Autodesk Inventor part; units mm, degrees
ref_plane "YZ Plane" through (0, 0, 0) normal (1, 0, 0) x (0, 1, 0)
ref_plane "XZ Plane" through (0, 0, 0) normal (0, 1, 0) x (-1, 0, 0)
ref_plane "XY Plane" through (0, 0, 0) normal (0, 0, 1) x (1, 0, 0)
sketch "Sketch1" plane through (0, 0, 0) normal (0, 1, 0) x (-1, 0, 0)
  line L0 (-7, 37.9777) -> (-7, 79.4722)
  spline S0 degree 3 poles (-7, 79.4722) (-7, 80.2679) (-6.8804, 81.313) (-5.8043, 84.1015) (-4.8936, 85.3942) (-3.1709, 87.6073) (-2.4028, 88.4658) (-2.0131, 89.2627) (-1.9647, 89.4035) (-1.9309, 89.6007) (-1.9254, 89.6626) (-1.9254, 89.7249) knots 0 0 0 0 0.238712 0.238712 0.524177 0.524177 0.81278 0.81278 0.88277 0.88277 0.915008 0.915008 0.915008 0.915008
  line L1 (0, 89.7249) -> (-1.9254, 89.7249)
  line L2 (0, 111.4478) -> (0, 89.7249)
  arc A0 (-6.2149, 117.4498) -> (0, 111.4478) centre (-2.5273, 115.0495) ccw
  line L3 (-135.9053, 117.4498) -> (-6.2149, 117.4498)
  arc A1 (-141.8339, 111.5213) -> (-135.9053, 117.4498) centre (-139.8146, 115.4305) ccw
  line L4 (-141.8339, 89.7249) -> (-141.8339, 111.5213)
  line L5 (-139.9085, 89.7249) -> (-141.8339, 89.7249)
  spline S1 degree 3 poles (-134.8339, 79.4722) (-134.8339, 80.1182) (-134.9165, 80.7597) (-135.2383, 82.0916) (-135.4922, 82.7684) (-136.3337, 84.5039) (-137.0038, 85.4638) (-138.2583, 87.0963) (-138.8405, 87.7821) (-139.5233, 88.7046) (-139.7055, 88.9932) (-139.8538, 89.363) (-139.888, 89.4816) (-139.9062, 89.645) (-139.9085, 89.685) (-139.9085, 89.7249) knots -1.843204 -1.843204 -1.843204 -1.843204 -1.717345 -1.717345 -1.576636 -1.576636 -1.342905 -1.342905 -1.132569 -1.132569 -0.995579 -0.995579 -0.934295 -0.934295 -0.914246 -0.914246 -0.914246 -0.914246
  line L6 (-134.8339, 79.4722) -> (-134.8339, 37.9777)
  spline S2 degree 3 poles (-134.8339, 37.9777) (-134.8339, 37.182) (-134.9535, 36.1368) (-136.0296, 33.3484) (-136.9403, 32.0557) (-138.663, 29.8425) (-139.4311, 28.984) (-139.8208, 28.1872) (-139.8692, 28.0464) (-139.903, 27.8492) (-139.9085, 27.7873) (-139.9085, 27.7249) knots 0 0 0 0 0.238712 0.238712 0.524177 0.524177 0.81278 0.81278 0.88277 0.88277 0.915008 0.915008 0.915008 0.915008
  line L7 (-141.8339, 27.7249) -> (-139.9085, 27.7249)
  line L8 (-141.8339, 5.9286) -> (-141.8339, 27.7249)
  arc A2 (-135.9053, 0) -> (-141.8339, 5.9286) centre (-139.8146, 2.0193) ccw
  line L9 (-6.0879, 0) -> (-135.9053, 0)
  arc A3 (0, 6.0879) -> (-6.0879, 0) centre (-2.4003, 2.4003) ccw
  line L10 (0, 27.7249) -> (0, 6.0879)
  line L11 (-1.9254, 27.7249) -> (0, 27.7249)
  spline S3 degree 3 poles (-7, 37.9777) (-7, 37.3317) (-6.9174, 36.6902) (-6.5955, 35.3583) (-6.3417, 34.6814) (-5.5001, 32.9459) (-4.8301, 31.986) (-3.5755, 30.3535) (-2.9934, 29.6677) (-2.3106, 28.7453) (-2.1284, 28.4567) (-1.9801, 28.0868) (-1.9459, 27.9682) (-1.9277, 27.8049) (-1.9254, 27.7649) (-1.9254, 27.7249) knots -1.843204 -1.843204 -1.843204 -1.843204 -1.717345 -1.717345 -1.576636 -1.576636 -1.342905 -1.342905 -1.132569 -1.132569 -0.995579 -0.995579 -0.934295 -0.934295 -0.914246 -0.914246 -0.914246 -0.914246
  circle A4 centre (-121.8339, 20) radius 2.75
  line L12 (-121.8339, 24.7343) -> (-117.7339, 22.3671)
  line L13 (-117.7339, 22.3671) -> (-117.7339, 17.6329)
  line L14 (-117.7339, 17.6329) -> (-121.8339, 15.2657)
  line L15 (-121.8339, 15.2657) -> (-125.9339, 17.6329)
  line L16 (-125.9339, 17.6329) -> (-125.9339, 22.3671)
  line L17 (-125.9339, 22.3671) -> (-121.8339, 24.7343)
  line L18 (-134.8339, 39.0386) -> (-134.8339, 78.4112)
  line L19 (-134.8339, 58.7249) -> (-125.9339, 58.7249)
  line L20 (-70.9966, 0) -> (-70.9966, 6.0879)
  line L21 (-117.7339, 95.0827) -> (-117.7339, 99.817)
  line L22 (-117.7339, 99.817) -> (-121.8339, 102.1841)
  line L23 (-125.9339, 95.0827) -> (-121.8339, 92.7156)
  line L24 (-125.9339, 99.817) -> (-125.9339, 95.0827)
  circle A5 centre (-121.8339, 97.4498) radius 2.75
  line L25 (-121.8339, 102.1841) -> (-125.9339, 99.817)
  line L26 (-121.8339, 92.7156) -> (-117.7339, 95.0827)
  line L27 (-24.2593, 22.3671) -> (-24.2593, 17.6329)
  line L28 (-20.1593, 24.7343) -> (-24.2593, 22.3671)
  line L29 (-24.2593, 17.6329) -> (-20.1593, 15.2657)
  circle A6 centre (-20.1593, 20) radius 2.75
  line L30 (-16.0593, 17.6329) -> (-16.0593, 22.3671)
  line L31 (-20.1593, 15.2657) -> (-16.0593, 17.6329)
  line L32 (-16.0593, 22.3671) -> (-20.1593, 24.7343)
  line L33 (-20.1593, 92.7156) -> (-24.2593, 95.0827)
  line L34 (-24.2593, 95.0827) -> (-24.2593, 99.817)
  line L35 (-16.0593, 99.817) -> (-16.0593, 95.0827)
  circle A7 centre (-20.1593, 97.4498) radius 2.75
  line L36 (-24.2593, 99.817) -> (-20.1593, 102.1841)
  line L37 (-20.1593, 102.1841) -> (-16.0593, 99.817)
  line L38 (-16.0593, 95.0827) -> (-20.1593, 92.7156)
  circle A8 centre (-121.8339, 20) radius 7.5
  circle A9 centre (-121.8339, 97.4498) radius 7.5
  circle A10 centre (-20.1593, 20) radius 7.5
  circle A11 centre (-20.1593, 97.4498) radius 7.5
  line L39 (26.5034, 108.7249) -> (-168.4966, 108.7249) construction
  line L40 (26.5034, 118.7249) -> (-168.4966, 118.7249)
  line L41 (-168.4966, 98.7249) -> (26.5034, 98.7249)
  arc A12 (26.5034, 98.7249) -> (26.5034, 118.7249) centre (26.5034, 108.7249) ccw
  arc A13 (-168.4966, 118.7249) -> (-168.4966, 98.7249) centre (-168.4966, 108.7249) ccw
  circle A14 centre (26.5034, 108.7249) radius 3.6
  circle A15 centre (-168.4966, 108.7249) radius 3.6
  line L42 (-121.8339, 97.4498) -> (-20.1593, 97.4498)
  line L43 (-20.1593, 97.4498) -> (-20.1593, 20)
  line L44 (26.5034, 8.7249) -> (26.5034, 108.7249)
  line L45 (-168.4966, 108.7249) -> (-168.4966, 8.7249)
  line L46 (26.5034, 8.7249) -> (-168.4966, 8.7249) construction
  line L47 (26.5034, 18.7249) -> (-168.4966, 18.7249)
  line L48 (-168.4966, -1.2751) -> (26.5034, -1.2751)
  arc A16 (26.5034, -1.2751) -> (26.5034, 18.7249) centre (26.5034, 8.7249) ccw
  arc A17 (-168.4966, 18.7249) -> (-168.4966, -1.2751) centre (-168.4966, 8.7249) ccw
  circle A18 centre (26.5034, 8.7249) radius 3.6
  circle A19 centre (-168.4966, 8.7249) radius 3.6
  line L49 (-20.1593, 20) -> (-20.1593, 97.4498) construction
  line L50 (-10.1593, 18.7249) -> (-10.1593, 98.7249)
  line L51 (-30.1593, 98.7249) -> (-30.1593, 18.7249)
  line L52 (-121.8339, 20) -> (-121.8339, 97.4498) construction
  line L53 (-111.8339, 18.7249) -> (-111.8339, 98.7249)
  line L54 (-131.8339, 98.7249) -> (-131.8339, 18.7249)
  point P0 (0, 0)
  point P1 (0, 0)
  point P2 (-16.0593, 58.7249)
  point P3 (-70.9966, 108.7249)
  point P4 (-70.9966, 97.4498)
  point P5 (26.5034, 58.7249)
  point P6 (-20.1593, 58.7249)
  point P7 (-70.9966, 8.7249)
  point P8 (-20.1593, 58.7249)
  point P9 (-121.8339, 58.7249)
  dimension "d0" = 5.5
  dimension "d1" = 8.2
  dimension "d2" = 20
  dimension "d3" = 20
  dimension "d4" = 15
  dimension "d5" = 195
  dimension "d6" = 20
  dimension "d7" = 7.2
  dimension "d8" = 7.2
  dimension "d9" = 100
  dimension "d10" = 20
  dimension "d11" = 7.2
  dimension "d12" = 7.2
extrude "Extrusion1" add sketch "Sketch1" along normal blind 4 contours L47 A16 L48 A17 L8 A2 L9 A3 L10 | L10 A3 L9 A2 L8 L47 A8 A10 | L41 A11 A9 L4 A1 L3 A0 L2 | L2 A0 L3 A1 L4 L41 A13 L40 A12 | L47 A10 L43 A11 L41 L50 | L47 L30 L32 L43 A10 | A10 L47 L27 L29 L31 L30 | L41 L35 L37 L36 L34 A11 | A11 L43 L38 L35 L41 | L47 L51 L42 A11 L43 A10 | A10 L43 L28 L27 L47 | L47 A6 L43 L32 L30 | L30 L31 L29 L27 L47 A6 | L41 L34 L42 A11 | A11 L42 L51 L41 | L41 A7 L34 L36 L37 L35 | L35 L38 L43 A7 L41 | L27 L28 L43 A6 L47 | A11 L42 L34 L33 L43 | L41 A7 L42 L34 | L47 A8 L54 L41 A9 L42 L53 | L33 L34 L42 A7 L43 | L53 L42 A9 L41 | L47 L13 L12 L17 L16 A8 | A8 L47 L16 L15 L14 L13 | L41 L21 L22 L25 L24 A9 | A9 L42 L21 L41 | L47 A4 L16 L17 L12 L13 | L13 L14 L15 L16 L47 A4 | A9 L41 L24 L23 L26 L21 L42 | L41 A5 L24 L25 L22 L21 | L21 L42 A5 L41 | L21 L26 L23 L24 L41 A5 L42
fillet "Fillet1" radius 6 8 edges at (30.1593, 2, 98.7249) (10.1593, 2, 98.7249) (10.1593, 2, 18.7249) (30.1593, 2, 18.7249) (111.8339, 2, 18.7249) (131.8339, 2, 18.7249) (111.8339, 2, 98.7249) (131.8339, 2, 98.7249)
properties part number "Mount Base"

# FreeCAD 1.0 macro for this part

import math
import FreeCAD as App
import Part
import Sketcher


def edges_at(feature, points):
    """Names of the edges that pass closest to the given points."""
    edges = feature.Shape.Edges
    near = lambda p: min(range(len(edges)), key=lambda i: edges[i].distToShape(Part.Vertex(*p))[0])
    return sorted({f"Edge{near(p) + 1}" for p in points})

doc = App.newDocument("Part")
body = doc.addObject("PartDesign::Body", "Body")

sketch1 = doc.addObject("Sketcher::SketchObject", "Sketch")
body.addObject(sketch1)
sketch1.AttachmentSupport = (doc.XZ_Plane, [""])
sketch1.MapMode = "FlatFace"
sketch1.addGeometry(Part.LineSegment(App.Vector(-26.5034, 18.7249, 0), App.Vector(10.1593, 18.7249, 0)), False)
sketch1.addGeometry(Part.LineSegment(App.Vector(10.1593, 18.7249, 0), App.Vector(10.1593, 98.7249, 0)), False)
sketch1.addGeometry(Part.LineSegment(App.Vector(10.1593, 98.7249, 0), App.Vector(-26.5034, 98.7249, 0)), False)
sketch1.addGeometry(Part.ArcOfCircle(Part.Circle(App.Vector(-26.5034, 108.7249, 0), App.Vector(0, 0, 1), 10), math.radians(90), math.radians(270)), False)
sketch1.addGeometry(Part.LineSegment(App.Vector(-26.5034, 118.7249, 0), App.Vector(168.4966, 118.7249, 0)), False)
sketch1.addGeometry(Part.ArcOfCircle(Part.Circle(App.Vector(168.4966, 108.7249, 0), App.Vector(0, 0, 1), 10), math.radians(-90), math.radians(90)), False)
sketch1.addGeometry(Part.LineSegment(App.Vector(168.4966, 98.7249, 0), App.Vector(131.8339, 98.7249, 0)), False)
sketch1.addGeometry(Part.LineSegment(App.Vector(131.8339, 98.7249, 0), App.Vector(131.8339, 18.7249, 0)), False)
sketch1.addGeometry(Part.LineSegment(App.Vector(131.8339, 18.7249, 0), App.Vector(168.4966, 18.7249, 0)), False)
sketch1.addGeometry(Part.ArcOfCircle(Part.Circle(App.Vector(168.4966, 8.7249, 0), App.Vector(0, 0, 1), 10), math.radians(-90), math.radians(90)), False)
sketch1.addGeometry(Part.LineSegment(App.Vector(168.4966, -1.2751, 0), App.Vector(-26.5034, -1.2751, 0)), False)
sketch1.addGeometry(Part.ArcOfCircle(Part.Circle(App.Vector(-26.5034, 8.7249, 0), App.Vector(0, 0, 1), 10), math.radians(90), math.radians(270)), False)
sketch1.addGeometry(Part.Circle(App.Vector(168.4966, 8.7249, 0), App.Vector(0, 0, 1), 3.6), False)
sketch1.addGeometry(Part.Circle(App.Vector(-26.5034, 8.7249, 0), App.Vector(0, 0, 1), 3.6), False)
sketch1.addGeometry(Part.LineSegment(App.Vector(30.1593, 18.7249, 0), App.Vector(111.8339, 18.7249, 0)), False)
sketch1.addGeometry(Part.LineSegment(App.Vector(111.8339, 18.7249, 0), App.Vector(111.8339, 98.7249, 0)), False)
sketch1.addGeometry(Part.LineSegment(App.Vector(111.8339, 98.7249, 0), App.Vector(30.1593, 98.7249, 0)), False)
sketch1.addGeometry(Part.LineSegment(App.Vector(30.1593, 98.7249, 0), App.Vector(30.1593, 18.7249, 0)), False)
sketch1.addGeometry(Part.Circle(App.Vector(20.1593, 20, 0), App.Vector(0, 0, 1), 2.75), False)
sketch1.addGeometry(Part.Circle(App.Vector(121.8339, 20, 0), App.Vector(0, 0, 1), 2.75), False)
sketch1.addGeometry(Part.Circle(App.Vector(-26.5034, 108.7249, 0), App.Vector(0, 0, 1), 3.6), False)
sketch1.addGeometry(Part.Circle(App.Vector(168.4966, 108.7249, 0), App.Vector(0, 0, 1), 3.6), False)
sketch1.addGeometry(Part.Circle(App.Vector(121.8339, 97.4498, 0), App.Vector(0, 0, 1), 2.75), False)
sketch1.addGeometry(Part.Circle(App.Vector(20.1593, 97.4498, 0), App.Vector(0, 0, 1), 2.75), False)
sketch1.addConstraint(Sketcher.Constraint("Coincident", 0, 2, 1, 1))
sketch1.addConstraint(Sketcher.Constraint("Coincident", 1, 2, 2, 1))
sketch1.addConstraint(Sketcher.Constraint("Tangent", 2, 2, 3, 2))
sketch1.addConstraint(Sketcher.Constraint("Tangent", 3, 1, 4, 1))
sketch1.addConstraint(Sketcher.Constraint("Tangent", 4, 2, 5, 2))
sketch1.addConstraint(Sketcher.Constraint("Tangent", 5, 1, 6, 1))
sketch1.addConstraint(Sketcher.Constraint("Coincident", 6, 2, 7, 1))
sketch1.addConstraint(Sketcher.Constraint("Coincident", 7, 2, 8, 1))
sketch1.addConstraint(Sketcher.Constraint("Tangent", 8, 2, 9, 2))
sketch1.addConstraint(Sketcher.Constraint("Tangent", 9, 1, 10, 1))
sketch1.addConstraint(Sketcher.Constraint("Tangent", 10, 2, 11, 2))
sketch1.addConstraint(Sketcher.Constraint("Tangent", 11, 1, 0, 1))
sketch1.addConstraint(Sketcher.Constraint("Coincident", 14, 2, 15, 1))
sketch1.addConstraint(Sketcher.Constraint("Coincident", 15, 2, 16, 1))
sketch1.addConstraint(Sketcher.Constraint("Coincident", 16, 2, 17, 1))
sketch1.addConstraint(Sketcher.Constraint("Coincident", 17, 2, 14, 1))
sketch1.addConstraint(Sketcher.Constraint("Horizontal", 0))
sketch1.addConstraint(Sketcher.Constraint("Vertical", 1))
sketch1.addConstraint(Sketcher.Constraint("Horizontal", 2))
sketch1.addConstraint(Sketcher.Constraint("Horizontal", 4))
sketch1.addConstraint(Sketcher.Constraint("Horizontal", 6))
sketch1.addConstraint(Sketcher.Constraint("Vertical", 7))
sketch1.addConstraint(Sketcher.Constraint("Horizontal", 8))
sketch1.addConstraint(Sketcher.Constraint("Horizontal", 10))
sketch1.addConstraint(Sketcher.Constraint("Horizontal", 14))
sketch1.addConstraint(Sketcher.Constraint("Vertical", 15))
sketch1.addConstraint(Sketcher.Constraint("Horizontal", 16))
sketch1.addConstraint(Sketcher.Constraint("Vertical", 17))
sketch1.addConstraint(Sketcher.Constraint("Coincident", 12, 3, 9, 3))
sketch1.addConstraint(Sketcher.Constraint("Coincident", 13, 3, 11, 3))
sketch1.addConstraint(Sketcher.Constraint("Coincident", 20, 3, 3, 3))
sketch1.addConstraint(Sketcher.Constraint("Coincident", 21, 3, 5, 3))
sketch1.addConstraint(Sketcher.Constraint("Equal", 3, 5))
sketch1.addConstraint(Sketcher.Constraint("Equal", 5, 9))
sketch1.addConstraint(Sketcher.Constraint("Equal", 9, 11))
sketch1.addConstraint(Sketcher.Constraint("Equal", 12, 13))
sketch1.addConstraint(Sketcher.Constraint("Equal", 18, 19))
sketch1.addConstraint(Sketcher.Constraint("Equal", 13, 20))
sketch1.addConstraint(Sketcher.Constraint("Equal", 20, 21))
sketch1.addConstraint(Sketcher.Constraint("Equal", 19, 22))
sketch1.addConstraint(Sketcher.Constraint("Equal", 22, 23))
sketch1.addConstraint(Sketcher.Constraint("Horizontal", 18, 3, 19, 3))
sketch1.addConstraint(Sketcher.Constraint("Horizontal", 22, 3, 23, 3))
sketch1.addConstraint(Sketcher.Constraint("Horizontal", 11, 1, 14, 2))
sketch1.addConstraint(Sketcher.Constraint("Horizontal", 6, 2, 15, 2))
sketch1.addConstraint(Sketcher.Constraint("Vertical", 5, 3, 9, 3))
sketch1.addConstraint(Sketcher.Constraint("Vertical", 3, 3, 11, 3))
sketch1.addConstraint(Sketcher.Constraint("Vertical", 19, 3, 22, 3))
sketch1.addConstraint(Sketcher.Constraint("Vertical", 18, 3, 23, 3))
sketch1.addConstraint(Sketcher.Constraint("Equal", 2, 6))
sketch1.addConstraint(Sketcher.Constraint("Radius", 3, 10.0))
sketch1.addConstraint(Sketcher.Constraint("Diameter", 12, 7.2))
sketch1.addConstraint(Sketcher.Constraint("Diameter", 18, 5.5))
sketch1.addConstraint(Sketcher.Constraint("DistanceX", 4, 1, 4, 2, 195.0))
sketch1.addConstraint(Sketcher.Constraint("DistanceY", -1, 1, 18, 3, 20.0))
sketch1.addConstraint(Sketcher.Constraint("DistanceY", 9, 3, 5, 3, 100.0))
sketch1.addConstraint(Sketcher.Constraint("DistanceX", 14, 2, 7, 2, 20.0))
sketch1.addConstraint(Sketcher.Constraint("DistanceX", 1, 2, 16, 2, 20.0))
sketch1.addConstraint(Sketcher.Constraint("DistanceX", 0, 2, 18, 3, 10.0))
sketch1.addConstraint(Sketcher.Constraint("DistanceX", 22, 3, 6, 2, 10.0))
sketch1.addConstraint(Sketcher.Constraint("DistanceX", 0, 1, 0, 2, 36.6627))
sketch1.addConstraint(Sketcher.Constraint("DistanceY", -1, 1, 3, 3, 108.725))
sketch1.addConstraint(Sketcher.Constraint("DistanceX", -1, 1, 19, 3, 121.834))
sketch1.addConstraint(Sketcher.Constraint("DistanceY", 22, 3, 5, 3, 11.275))
pad1 = doc.addObject("PartDesign::Pad", "Pad")
body.addObject(pad1)
pad1.Profile = sketch1
pad1.Length = 4
pad1.Reversed = True
doc.recompute()

fillet = doc.addObject("PartDesign::Fillet", "Fillet")
body.addObject(fillet)
fillet.Base = (pad1, edges_at(pad1, [
    (30.159, 2, 98.725),
    (10.159, 2, 98.725),
    (10.159, 2, 18.725),
    (30.159, 2, 18.725),
    (111.834, 2, 18.725),
    (131.834, 2, 18.725),
    (111.834, 2, 98.725),
    (131.834, 2, 98.725),
]))
fillet.Radius = 6

doc.recompute()
